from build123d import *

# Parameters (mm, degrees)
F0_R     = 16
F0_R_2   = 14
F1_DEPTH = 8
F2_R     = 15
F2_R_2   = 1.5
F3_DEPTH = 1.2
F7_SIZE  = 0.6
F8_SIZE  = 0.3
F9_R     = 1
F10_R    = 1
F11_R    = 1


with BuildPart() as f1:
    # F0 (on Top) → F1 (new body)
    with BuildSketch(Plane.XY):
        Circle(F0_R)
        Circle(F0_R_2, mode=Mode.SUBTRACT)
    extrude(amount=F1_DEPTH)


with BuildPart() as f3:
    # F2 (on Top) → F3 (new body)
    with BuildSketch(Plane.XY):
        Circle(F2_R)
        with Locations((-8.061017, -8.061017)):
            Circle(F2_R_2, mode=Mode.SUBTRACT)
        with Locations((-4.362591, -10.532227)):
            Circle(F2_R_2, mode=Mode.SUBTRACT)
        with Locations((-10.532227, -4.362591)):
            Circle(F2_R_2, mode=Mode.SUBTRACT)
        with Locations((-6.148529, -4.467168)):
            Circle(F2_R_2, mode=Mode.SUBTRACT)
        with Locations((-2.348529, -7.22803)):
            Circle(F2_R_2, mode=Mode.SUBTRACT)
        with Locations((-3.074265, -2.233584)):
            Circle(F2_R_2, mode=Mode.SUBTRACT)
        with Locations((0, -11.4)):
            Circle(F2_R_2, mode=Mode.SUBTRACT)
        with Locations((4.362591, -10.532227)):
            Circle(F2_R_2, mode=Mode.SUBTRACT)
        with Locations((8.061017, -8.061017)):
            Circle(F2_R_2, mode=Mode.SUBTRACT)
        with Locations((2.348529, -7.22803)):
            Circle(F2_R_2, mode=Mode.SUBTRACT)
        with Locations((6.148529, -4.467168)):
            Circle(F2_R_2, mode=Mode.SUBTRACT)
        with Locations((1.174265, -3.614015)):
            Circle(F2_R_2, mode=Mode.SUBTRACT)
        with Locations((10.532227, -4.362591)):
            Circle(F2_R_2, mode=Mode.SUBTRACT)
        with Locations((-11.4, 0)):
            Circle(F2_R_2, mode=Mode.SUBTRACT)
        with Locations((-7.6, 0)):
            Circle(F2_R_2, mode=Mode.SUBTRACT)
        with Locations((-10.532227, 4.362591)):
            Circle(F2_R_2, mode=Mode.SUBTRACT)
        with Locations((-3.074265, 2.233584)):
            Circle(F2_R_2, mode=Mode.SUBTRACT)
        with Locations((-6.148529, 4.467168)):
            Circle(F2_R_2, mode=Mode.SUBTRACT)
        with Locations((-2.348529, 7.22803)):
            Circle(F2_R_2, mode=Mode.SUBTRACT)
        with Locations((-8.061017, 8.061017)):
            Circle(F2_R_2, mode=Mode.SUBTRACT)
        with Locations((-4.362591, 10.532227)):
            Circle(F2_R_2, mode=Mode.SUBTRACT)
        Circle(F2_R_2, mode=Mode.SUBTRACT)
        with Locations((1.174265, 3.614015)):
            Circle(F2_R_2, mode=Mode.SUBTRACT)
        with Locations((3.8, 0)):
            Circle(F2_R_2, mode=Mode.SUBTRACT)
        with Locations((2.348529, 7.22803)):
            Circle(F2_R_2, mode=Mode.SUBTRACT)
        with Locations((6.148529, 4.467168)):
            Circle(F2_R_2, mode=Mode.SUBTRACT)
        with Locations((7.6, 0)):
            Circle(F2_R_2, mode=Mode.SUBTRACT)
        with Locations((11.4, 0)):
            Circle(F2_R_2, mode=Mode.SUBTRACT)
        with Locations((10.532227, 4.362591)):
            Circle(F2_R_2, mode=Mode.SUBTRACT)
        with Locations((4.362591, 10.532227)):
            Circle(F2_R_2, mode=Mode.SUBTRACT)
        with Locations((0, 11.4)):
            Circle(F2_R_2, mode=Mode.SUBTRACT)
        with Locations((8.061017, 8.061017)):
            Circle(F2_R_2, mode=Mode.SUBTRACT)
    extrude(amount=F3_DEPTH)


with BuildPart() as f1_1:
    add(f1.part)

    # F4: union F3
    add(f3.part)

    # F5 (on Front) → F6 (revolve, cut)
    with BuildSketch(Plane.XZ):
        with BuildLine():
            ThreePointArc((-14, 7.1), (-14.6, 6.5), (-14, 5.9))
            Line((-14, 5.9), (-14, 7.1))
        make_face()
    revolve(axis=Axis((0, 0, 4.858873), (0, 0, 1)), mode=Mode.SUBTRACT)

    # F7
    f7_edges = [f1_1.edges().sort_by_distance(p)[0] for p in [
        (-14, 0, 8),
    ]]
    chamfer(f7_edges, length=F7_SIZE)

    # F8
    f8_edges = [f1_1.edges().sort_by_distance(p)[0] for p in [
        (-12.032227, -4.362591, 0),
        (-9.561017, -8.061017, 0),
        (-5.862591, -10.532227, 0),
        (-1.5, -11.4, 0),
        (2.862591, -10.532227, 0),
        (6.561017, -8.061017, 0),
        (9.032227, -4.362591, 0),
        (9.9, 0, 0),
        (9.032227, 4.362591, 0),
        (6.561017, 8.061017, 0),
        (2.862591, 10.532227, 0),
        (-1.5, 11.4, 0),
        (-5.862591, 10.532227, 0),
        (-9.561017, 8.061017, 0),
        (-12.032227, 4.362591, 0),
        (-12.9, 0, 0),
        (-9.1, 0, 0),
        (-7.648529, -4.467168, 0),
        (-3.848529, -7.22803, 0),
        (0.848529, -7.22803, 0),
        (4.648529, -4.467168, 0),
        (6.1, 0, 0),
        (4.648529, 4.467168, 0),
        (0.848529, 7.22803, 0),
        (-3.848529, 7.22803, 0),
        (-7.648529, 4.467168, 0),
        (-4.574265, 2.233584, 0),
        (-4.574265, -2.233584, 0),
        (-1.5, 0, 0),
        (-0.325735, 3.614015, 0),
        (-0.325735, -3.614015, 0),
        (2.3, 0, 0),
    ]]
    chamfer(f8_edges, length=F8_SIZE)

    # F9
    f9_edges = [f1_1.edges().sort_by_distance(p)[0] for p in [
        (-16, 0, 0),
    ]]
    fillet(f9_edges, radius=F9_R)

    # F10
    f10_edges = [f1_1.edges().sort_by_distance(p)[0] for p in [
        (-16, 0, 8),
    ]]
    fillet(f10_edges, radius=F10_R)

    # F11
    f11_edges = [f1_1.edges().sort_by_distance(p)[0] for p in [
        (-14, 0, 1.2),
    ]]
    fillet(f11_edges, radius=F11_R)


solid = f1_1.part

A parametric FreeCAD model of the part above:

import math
import FreeCAD as App
import Part
import Sketcher
Q = App.Units.Quantity


def edges_at(feature, points):
    """Names of the edges that pass closest to the given points."""
    edges = feature.Shape.Edges
    near = lambda p: min(range(len(edges)), key=lambda i: edges[i].distToShape(Part.Vertex(*p))[0])
    return sorted({f"Edge{near(p) + 1}" for p in points})

doc = App.newDocument("Part")
body = doc.addObject("PartDesign::Body", "Body")

sketch1 = body.newObject("Sketcher::SketchObject", "Sketch")
sketch1.AttachmentSupport = (doc.getObject("XY_Plane"), [""])
sketch1.MapMode = "FlatFace"
sketch1.addGeometry([
    Part.Circle(App.Vector(0, 0, 0), App.Vector(0, 0, 1), 16),
    Part.Circle(App.Vector(0, 0, 0), App.Vector(0, 0, 1), 14),
], False)
sketch1.addConstraint([
    Sketcher.Constraint("Coincident", 0, 3, -1, 1),
    Sketcher.Constraint("Coincident", 1, 3, -1, 1),
    Sketcher.Constraint("Diameter", 0, Q("32 mm")),
    Sketcher.Constraint("Diameter", 1, Q("28 mm")),
])
pad1 = body.newObject("PartDesign::Pad", "Pad")
pad1.Profile = sketch1
pad1.Length = 8
body2 = doc.addObject("PartDesign::Body", "Body001")

sketch2 = body2.newObject("Sketcher::SketchObject", "Sketch001")
sketch2.AttachmentSupport = (doc.getObject("XY_Plane001"), [""])
sketch2.MapMode = "FlatFace"
sketch2.addGeometry([
    Part.Circle(App.Vector(0, 0, 0), App.Vector(0, 0, 1), 15),
    Part.Circle(App.Vector(-8.1, -8.1, 0), App.Vector(0, 0, 1), 1.5),
    Part.Circle(App.Vector(-4.4, -10.5, 0), App.Vector(0, 0, 1), 1.5),
    Part.Circle(App.Vector(-2.3, -7.2, 0), App.Vector(0, 0, 1), 1.5),
    Part.Circle(App.Vector(-10.5, -4.4, 0), App.Vector(0, 0, 1), 1.5),
    Part.Circle(App.Vector(-6.1, -4.5, 0), App.Vector(0, 0, 1), 1.5),
    Part.Circle(App.Vector(-3.1, -2.2, 0), App.Vector(0, 0, 1), 1.5),
    Part.Circle(App.Vector(0, -11.4, 0), App.Vector(0, 0, 1), 1.5),
    Part.Circle(App.Vector(4.4, -10.5, 0), App.Vector(0, 0, 1), 1.5),
    Part.Circle(App.Vector(2.3, -7.2, 0), App.Vector(0, 0, 1), 1.5),
    Part.Circle(App.Vector(8.1, -8.1, 0), App.Vector(0, 0, 1), 1.5),
    Part.Circle(App.Vector(1.2, -3.6, 0), App.Vector(0, 0, 1), 1.5),
    Part.Circle(App.Vector(6.1, -4.5, 0), App.Vector(0, 0, 1), 1.5),
    Part.Circle(App.Vector(10.5, -4.4, 0), App.Vector(0, 0, 1), 1.5),
    Part.Circle(App.Vector(-11.4, 0, 0), App.Vector(0, 0, 1), 1.5),
    Part.Circle(App.Vector(-7.6, 0, 0), App.Vector(0, 0, 1), 1.5),
    Part.Circle(App.Vector(-10.5, 4.4, 0), App.Vector(0, 0, 1), 1.5),
    Part.Circle(App.Vector(-3.1, 2.2, 0), App.Vector(0, 0, 1), 1.5),
    Part.Circle(App.Vector(-6.1, 4.5, 0), App.Vector(0, 0, 1), 1.5),
    Part.Circle(App.Vector(-8.1, 8.1, 0), App.Vector(0, 0, 1), 1.5),
    Part.Circle(App.Vector(-2.3, 7.2, 0), App.Vector(0, 0, 1), 1.5),
    Part.Circle(App.Vector(-4.4, 10.5, 0), App.Vector(0, 0, 1), 1.5),
    Part.Circle(App.Vector(0, 0, 0), App.Vector(0, 0, 1), 1.5),
    Part.Circle(App.Vector(3.8, 0, 0), App.Vector(0, 0, 1), 1.5),
    Part.Circle(App.Vector(1.2, 3.6, 0), App.Vector(0, 0, 1), 1.5),
    Part.Circle(App.Vector(6.1, 4.5, 0), App.Vector(0, 0, 1), 1.5),
    Part.Circle(App.Vector(7.6, 0, 0), App.Vector(0, 0, 1), 1.5),
    Part.Circle(App.Vector(11.4, 0, 0), App.Vector(0, 0, 1), 1.5),
    Part.Circle(App.Vector(10.5, 4.4, 0), App.Vector(0, 0, 1), 1.5),
    Part.Circle(App.Vector(2.3, 7.2, 0), App.Vector(0, 0, 1), 1.5),
    Part.Circle(App.Vector(0, 11.4, 0), App.Vector(0, 0, 1), 1.5),
    Part.Circle(App.Vector(4.4, 10.5, 0), App.Vector(0, 0, 1), 1.5),
    Part.Circle(App.Vector(8.1, 8.1, 0), App.Vector(0, 0, 1), 1.5),
], False)
sketch2.addConstraint([
    Sketcher.Constraint("Coincident", 0, 3, -1, 1),
    Sketcher.Constraint("Coincident", 22, 3, -1, 1),
    Sketcher.Constraint("Equal", 1, 2),
    Sketcher.Constraint("Equal", 2, 3),
    Sketcher.Constraint("Equal", 3, 4),
    Sketcher.Constraint("Equal", 4, 5),
    Sketcher.Constraint("Equal", 5, 6),
    Sketcher.Constraint("Equal", 6, 7),
    Sketcher.Constraint("Equal", 7, 8),
    Sketcher.Constraint("Equal", 8, 9),
    Sketcher.Constraint("Equal", 9, 10),
    Sketcher.Constraint("Equal", 10, 11),
    Sketcher.Constraint("Equal", 11, 12),
    Sketcher.Constraint("Equal", 12, 13),
    Sketcher.Constraint("Equal", 13, 14),
    Sketcher.Constraint("Equal", 14, 15),
    Sketcher.Constraint("Equal", 15, 16),
    Sketcher.Constraint("Equal", 16, 17),
    Sketcher.Constraint("Equal", 17, 18),
    Sketcher.Constraint("Equal", 18, 19),
    Sketcher.Constraint("Equal", 19, 20),
    Sketcher.Constraint("Equal", 20, 21),
    Sketcher.Constraint("Equal", 21, 22),
    Sketcher.Constraint("Equal", 22, 23),
    Sketcher.Constraint("Equal", 23, 24),
    Sketcher.Constraint("Equal", 24, 25),
    Sketcher.Constraint("Equal", 25, 26),
    Sketcher.Constraint("Equal", 26, 27),
    Sketcher.Constraint("Equal", 27, 28),
    Sketcher.Constraint("Equal", 28, 29),
    Sketcher.Constraint("Equal", 29, 30),
    Sketcher.Constraint("Equal", 30, 31),
    Sketcher.Constraint("Equal", 31, 32),
    Sketcher.Constraint("Symmetric", 13, 3, 16, 3, -1, 1),
    Sketcher.Constraint("Symmetric", 12, 3, 18, 3, -1, 1),
    Sketcher.Constraint("Symmetric", 10, 3, 19, 3, -1, 1),
    Sketcher.Constraint("Symmetric", 9, 3, 20, 3, -1, 1),
    Sketcher.Constraint("Symmetric", 8, 3, 21, 3, -1, 1),
    Sketcher.Constraint("Symmetric", 5, 3, 25, 3, -1, 1),
    Sketcher.Constraint("Symmetric", 15, 3, 26, 3, -1, 1),
    Sketcher.Constraint("Symmetric", 14, 3, 27, 3, -1, 1),
    Sketcher.Constraint("Symmetric", 4, 3, 28, 3, -1, 1),
    Sketcher.Constraint("Symmetric", 3, 3, 29, 3, -1, 1),
    Sketcher.Constraint("Symmetric", 7, 3, 30, 3, -1, 1),
    Sketcher.Constraint("Symmetric", 2, 3, 31, 3, -1, 1),
    Sketcher.Constraint("Symmetric", 1, 3, 32, 3, -1, 1),
    Sketcher.Constraint("Symmetric", 2, 3, 8, 3, -2),
    Sketcher.Constraint("Symmetric", 3, 3, 9, 3, -2),
    Sketcher.Constraint("Symmetric", 1, 3, 10, 3, -2),
    Sketcher.Constraint("Symmetric", 5, 3, 12, 3, -2),
    Sketcher.Constraint("Symmetric", 4, 3, 13, 3, -2),
    Sketcher.Constraint("Symmetric", 6, 3, 17, 3, -1),
    Sketcher.Constraint("Symmetric", 11, 3, 24, 3, -1),
    Sketcher.Constraint("PointOnObject", 7, 3, -2),
    Sketcher.Constraint("PointOnObject", 14, 3, -1),
    Sketcher.Constraint("PointOnObject", 15, 3, -1),
    Sketcher.Constraint("PointOnObject", 23, 3, -1),
    Sketcher.Constraint("Diameter", 0, Q("30 mm")),
    Sketcher.Constraint("Diameter", 1, Q("3 mm")),
    Sketcher.Constraint("DistanceY", 7, 3, -1, 1, Q("11.4 mm")),
    Sketcher.Constraint("DistanceX", 14, 3, -1, 1, Q("11.4 mm")),
    Sketcher.Constraint("DistanceX", 15, 3, -1, 1, Q("7.6 mm")),
    Sketcher.Constraint("DistanceX", -1, 1, 23, 3, Q("3.8 mm")),
    Sketcher.Constraint("DistanceX", 5, 3, 3, 3, Q("3.8 mm")),
    Sketcher.Constraint("DistanceX", 4, 3, 5, 3, Q("4.383698 mm")),
    Sketcher.Constraint("DistanceY", 11, 3, 17, 3, Q("5.847599 mm")),
    Sketcher.Constraint("DistanceX", 2, 3, -1, 1, Q("4.362591 mm")),
    Sketcher.Constraint("DistanceX", 3, 3, -1, 1, Q("2.348529 mm")),
    Sketcher.Constraint("DistanceY", 3, 3, -1, 1, Q("7.22803 mm")),
    Sketcher.Constraint("DistanceY", 4, 3, -1, 1, Q("4.362591 mm")),
    Sketcher.Constraint("DistanceY", 2, 3, 1, 3, Q("2.47121 mm")),
    Sketcher.Constraint("DistanceX", 4, 3, 1, 3, Q("2.47121 mm")),
    Sketcher.Constraint("DistanceY", 1, 3, 5, 3, Q("3.593849 mm")),
    Sketcher.Constraint("DistanceX", 1, 3, 6, 3, Q("4.986752 mm")),
    Sketcher.Constraint("DistanceX", 6, 3, 11, 3, Q("4.24853 mm")),
    Sketcher.Constraint("DistanceY", 11, 3, 6, 3, Q("1.380431 mm")),
    Sketcher.Constraint("DistanceY", 5, 3, 16, 3, Q("8.829759 mm")),
])
pad2 = body2.newObject("PartDesign::Pad", "Pad001")
pad2.Profile = sketch2
pad2.Length = 1.2
doc.recompute()

boolean = body.newObject("PartDesign::Boolean", "Boolean")
boolean.Type = "Fuse"
boolean.addObjects([body2])

sketch3 = body.newObject("Sketcher::SketchObject", "Sketch002")
sketch3.AttachmentSupport = (doc.getObject("XZ_Plane"), [""])
sketch3.MapMode = "FlatFace"
sketch3.addGeometry([
    Part.ArcOfCircle(Part.Circle(App.Vector(-14, 6.5, 0), App.Vector(0, 0, 1), 0.6), math.radians(90), math.radians(270)),
    Part.LineSegment(App.Vector(-14, 5.9, 0), App.Vector(-14, 7.1, 0)),
], False)
sketch3.addConstraint([
    Sketcher.Constraint("Coincident", 0, 1, 1, 2),
    Sketcher.Constraint("Coincident", 1, 1, 0, 2),
    Sketcher.Constraint("Vertical", 1),
    Sketcher.Constraint("Radius", 0, Q("0.6 mm")),
    Sketcher.Constraint("DistanceX", 0, 3, -1, 1, Q("14 mm")),
    Sketcher.Constraint("DistanceX", 0, 1, -1, 1, Q("14 mm")),
    Sketcher.Constraint("DistanceY", -1, 1, 0, 3, Q("6.5 mm")),
])
groove = body.newObject("PartDesign::Groove", "Groove")
groove.Profile = sketch3
groove.ReferenceAxis = (sketch3, ["V_Axis"])
groove.Angle = 360
doc.recompute()

chamfer = body.newObject("PartDesign::Chamfer", "Chamfer")
chamfer.Base = (groove, edges_at(groove, [(-14, 0, 8)]))
chamfer.Size = 0.6
doc.recompute()

chamfer2 = body.newObject("PartDesign::Chamfer", "Chamfer001")
chamfer2.Base = (chamfer, edges_at(chamfer, [
    (-12.032, -4.363, 0),
    (-9.561, -8.061, 0),
    (-5.863, -10.532, 0),
    (-1.5, -11.4, 0),
    (2.863, -10.532, 0),
    (6.561, -8.061, 0),
    (9.032, -4.363, 0),
    (9.9, 0, 0),
    (9.032, 4.363, 0),
    (6.561, 8.061, 0),
    (2.863, 10.532, 0),
    (-1.5, 11.4, 0),
    (-5.863, 10.532, 0),
    (-9.561, 8.061, 0),
    (-12.032, 4.363, 0),
    (-12.9, 0, 0),
    (-9.1, 0, 0),
    (-7.649, -4.467, 0),
    (-3.849, -7.228, 0),
    (0.849, -7.228, 0),
    (4.649, -4.467, 0),
    (6.1, 0, 0),
    (4.649, 4.467, 0),
    (0.849, 7.228, 0),
    (-3.849, 7.228, 0),
    (-7.649, 4.467, 0),
    (-4.574, 2.234, 0),
    (-4.574, -2.234, 0),
    (-1.5, 0, 0),
    (-0.326, 3.614, 0),
    (-0.326, -3.614, 0),
    (2.3, 0, 0),
]))
chamfer2.Size = 0.3
doc.recompute()

fillet = body.newObject("PartDesign::Fillet", "Fillet")
fillet.Base = (chamfer2, edges_at(chamfer2, [(-16, 0, 0)]))
fillet.Radius = 1
doc.recompute()

fillet2 = body.newObject("PartDesign::Fillet", "Fillet001")
fillet2.Base = (fillet, edges_at(fillet, [(-16, 0, 8)]))
fillet2.Radius = 1
doc.recompute()

fillet3 = body.newObject("PartDesign::Fillet", "Fillet002")
fillet3.Base = (fillet2, edges_at(fillet2, [(-14, 0, 1.2)]))
fillet3.Radius = 1

doc.recompute()
